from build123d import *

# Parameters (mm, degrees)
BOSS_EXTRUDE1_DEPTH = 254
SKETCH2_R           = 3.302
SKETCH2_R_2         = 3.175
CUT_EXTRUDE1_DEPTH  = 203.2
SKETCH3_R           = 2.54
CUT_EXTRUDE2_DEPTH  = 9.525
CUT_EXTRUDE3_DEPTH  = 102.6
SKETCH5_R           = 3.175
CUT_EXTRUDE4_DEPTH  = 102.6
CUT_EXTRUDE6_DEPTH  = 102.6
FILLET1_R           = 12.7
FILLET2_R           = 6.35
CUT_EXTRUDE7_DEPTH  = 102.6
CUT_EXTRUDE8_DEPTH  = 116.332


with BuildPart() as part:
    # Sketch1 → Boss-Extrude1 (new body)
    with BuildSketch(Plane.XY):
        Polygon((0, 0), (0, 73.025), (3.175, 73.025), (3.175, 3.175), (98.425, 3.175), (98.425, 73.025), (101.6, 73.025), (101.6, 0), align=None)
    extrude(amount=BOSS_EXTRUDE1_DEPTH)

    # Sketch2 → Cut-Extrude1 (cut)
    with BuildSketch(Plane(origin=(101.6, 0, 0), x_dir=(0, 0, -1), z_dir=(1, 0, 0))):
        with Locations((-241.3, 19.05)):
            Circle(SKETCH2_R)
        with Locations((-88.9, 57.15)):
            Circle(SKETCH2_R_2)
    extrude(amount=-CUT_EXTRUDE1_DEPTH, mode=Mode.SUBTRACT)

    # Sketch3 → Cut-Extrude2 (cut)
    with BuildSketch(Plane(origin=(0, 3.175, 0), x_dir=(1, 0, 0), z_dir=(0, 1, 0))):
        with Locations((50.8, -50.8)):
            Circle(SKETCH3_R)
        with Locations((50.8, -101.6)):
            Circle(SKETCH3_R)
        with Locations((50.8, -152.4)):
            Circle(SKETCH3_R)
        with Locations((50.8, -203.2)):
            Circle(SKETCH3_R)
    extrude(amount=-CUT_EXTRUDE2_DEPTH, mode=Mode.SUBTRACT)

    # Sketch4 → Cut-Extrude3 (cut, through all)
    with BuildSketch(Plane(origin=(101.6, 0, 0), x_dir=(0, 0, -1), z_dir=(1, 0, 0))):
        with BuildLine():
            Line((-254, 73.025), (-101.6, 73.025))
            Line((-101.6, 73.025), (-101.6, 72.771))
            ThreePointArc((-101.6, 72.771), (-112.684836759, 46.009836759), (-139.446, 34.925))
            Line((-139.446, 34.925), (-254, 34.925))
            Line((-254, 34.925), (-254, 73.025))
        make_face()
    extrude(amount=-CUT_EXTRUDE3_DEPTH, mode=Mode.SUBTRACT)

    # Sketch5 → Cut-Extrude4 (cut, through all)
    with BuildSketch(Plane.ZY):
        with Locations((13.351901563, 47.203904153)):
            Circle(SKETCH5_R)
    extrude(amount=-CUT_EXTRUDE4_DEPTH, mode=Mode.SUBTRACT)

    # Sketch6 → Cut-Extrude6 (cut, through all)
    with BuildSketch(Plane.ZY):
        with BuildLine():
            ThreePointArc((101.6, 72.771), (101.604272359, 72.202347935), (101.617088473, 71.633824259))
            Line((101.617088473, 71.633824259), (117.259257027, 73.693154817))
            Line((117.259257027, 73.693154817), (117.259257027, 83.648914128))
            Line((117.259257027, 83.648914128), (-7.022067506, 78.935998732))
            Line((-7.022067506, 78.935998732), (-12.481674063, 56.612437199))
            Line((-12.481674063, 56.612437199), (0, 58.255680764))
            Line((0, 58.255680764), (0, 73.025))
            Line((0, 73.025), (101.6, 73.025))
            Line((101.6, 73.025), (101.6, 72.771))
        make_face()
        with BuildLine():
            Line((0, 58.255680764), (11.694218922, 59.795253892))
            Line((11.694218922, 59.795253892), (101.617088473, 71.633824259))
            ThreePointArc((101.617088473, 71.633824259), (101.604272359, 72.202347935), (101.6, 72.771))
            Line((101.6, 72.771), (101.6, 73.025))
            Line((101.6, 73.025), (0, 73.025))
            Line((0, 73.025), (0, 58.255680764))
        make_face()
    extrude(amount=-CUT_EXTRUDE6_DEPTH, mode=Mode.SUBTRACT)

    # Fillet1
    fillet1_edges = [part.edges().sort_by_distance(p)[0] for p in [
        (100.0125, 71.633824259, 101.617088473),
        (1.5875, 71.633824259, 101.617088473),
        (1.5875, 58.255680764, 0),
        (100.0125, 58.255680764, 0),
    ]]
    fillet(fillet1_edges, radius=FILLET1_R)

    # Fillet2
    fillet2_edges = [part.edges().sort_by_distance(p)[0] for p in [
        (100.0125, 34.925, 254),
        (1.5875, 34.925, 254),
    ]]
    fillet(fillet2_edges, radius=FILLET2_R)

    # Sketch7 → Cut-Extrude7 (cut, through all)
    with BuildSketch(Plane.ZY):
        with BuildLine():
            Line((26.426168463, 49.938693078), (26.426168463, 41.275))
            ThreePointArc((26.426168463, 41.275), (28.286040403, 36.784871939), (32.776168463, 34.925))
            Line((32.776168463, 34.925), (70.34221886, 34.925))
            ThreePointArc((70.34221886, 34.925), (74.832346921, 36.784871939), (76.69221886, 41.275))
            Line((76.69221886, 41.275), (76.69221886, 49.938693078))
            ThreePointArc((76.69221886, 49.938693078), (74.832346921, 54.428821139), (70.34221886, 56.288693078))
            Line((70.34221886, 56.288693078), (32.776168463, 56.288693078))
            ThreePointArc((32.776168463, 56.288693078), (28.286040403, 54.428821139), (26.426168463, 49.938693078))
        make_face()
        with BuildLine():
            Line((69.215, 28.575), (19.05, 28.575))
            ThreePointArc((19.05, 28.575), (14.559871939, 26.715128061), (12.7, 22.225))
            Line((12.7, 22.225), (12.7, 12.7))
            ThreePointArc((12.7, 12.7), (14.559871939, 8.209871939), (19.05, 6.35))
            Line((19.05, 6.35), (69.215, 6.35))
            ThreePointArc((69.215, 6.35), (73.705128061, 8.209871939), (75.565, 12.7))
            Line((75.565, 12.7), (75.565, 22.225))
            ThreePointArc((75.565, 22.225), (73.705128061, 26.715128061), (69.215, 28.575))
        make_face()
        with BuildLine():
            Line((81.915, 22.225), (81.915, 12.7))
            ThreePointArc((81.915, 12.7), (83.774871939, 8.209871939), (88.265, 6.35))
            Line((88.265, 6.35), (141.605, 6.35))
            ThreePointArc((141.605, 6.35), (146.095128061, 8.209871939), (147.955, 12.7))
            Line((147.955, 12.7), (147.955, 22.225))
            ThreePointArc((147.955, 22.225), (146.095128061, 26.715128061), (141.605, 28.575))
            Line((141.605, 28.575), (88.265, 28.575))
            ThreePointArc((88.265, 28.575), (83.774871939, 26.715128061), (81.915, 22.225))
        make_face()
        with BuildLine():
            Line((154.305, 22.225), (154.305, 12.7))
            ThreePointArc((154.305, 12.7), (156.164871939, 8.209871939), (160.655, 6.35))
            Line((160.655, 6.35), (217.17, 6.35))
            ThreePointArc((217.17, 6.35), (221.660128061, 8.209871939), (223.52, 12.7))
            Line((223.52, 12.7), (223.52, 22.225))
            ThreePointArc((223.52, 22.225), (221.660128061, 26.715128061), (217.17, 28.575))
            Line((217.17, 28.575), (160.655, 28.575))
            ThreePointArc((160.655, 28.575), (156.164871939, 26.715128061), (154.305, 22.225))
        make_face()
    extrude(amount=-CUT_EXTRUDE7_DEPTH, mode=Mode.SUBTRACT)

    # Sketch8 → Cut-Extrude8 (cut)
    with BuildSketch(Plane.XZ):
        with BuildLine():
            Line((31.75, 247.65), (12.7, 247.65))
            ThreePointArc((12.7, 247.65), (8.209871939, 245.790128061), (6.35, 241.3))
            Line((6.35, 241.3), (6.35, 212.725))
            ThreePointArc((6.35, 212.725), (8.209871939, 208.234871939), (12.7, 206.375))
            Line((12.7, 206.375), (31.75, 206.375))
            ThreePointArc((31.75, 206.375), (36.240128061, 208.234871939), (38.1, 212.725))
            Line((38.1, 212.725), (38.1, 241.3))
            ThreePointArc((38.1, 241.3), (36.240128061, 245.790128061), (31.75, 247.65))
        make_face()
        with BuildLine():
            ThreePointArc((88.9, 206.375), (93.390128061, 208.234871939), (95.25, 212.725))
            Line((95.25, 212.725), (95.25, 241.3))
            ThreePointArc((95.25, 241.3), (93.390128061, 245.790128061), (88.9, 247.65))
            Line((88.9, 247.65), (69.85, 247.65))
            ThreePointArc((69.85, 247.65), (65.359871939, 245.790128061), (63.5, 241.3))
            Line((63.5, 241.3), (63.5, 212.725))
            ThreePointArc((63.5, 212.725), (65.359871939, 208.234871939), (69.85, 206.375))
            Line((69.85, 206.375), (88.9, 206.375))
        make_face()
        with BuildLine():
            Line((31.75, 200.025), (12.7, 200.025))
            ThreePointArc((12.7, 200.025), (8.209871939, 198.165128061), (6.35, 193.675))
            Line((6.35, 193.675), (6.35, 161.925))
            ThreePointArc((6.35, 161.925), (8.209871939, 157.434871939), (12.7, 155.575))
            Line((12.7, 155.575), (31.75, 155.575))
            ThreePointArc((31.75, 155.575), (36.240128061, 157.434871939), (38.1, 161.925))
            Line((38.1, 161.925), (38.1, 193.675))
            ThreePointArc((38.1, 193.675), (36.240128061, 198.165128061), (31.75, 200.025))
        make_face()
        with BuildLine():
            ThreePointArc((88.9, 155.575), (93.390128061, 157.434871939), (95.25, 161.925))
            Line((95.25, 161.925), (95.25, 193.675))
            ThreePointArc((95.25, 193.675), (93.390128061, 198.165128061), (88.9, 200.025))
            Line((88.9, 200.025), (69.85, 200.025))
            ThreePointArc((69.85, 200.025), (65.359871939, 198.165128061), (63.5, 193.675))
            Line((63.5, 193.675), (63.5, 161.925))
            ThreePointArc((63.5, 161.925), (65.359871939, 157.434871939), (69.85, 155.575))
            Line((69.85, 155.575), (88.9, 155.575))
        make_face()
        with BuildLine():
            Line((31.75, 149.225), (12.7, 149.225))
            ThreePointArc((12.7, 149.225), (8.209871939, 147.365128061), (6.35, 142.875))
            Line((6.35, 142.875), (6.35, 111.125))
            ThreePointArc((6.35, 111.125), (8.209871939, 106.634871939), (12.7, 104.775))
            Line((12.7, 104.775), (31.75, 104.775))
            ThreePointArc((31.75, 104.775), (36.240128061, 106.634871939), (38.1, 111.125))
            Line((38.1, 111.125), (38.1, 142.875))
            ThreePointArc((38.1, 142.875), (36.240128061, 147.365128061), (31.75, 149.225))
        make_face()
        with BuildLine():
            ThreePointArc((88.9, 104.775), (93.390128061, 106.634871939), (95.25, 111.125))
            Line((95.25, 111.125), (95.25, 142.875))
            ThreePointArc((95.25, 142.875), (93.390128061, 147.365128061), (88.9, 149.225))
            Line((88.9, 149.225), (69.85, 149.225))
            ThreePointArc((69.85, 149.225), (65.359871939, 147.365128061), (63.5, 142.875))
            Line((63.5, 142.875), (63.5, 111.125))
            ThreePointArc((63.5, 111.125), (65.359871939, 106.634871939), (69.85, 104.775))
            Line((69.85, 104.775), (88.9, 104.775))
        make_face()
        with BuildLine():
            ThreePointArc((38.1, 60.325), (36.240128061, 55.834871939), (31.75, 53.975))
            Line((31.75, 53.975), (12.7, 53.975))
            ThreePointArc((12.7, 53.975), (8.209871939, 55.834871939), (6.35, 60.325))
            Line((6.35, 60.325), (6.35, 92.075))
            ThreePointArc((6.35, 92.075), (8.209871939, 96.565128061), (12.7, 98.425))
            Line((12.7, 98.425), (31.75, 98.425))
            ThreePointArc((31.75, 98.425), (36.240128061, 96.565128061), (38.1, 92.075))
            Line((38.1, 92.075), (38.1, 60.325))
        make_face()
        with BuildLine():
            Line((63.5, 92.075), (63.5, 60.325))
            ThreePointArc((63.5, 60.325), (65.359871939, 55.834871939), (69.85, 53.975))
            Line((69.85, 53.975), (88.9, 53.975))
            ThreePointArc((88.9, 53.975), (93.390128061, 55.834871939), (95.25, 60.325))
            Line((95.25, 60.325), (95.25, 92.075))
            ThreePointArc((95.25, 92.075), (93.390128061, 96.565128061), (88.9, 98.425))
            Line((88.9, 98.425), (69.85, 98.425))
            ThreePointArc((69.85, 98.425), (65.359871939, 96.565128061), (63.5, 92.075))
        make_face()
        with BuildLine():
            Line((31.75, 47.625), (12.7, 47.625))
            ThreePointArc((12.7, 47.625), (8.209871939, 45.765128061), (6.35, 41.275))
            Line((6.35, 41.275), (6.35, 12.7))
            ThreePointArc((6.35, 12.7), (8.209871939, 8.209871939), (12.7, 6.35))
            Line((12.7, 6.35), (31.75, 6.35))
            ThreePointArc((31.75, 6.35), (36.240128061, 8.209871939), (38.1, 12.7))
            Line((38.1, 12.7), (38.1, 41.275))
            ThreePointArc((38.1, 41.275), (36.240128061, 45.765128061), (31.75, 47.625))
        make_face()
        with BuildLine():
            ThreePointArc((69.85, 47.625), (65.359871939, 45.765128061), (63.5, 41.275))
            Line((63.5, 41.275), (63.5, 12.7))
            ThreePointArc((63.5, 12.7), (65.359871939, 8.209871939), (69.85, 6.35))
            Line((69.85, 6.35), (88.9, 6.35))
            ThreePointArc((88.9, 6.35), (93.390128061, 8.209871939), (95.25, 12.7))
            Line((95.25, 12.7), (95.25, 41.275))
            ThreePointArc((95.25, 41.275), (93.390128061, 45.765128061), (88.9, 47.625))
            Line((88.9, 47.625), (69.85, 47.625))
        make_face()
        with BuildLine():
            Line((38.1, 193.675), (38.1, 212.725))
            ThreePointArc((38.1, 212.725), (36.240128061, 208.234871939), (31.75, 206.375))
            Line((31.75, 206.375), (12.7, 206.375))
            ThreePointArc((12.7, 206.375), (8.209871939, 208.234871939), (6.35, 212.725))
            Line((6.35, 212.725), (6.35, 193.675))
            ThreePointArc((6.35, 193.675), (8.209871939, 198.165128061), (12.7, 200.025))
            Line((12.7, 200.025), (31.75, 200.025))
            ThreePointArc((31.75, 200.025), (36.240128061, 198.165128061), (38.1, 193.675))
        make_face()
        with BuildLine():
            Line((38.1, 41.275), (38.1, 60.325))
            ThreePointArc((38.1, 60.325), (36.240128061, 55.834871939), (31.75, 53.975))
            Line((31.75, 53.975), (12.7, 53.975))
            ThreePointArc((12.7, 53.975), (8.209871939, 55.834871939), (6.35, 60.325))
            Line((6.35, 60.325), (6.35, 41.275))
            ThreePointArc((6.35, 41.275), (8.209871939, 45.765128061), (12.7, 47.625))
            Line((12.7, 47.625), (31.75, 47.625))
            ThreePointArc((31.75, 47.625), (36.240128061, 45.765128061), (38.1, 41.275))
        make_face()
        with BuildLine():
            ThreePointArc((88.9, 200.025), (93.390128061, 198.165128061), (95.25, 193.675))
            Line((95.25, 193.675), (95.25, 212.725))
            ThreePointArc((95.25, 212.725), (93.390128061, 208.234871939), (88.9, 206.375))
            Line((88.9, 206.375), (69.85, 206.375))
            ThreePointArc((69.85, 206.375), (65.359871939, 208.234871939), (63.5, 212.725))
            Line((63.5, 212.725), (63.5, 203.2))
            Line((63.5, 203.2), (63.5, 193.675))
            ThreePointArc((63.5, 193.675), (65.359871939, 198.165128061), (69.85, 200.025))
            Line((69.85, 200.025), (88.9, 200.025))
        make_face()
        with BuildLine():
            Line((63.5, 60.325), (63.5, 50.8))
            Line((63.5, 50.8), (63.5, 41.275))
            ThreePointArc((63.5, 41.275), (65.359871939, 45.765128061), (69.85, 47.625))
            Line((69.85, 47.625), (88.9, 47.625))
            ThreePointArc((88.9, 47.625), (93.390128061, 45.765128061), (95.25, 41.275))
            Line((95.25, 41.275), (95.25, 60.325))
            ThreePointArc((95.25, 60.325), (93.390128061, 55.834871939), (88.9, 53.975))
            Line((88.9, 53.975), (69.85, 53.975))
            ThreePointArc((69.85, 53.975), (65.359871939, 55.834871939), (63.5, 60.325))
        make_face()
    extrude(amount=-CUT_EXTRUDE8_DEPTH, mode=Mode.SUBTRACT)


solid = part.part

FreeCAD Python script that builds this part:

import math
import FreeCAD as App
import Part
import Sketcher

V = App.Vector
Q = App.Units.Quantity


def edges_at(feature, points):
    """Names of the edges that pass closest to the given points."""
    edges = feature.Shape.Edges
    near = lambda p: min(range(len(edges)), key=lambda i: edges[i].distToShape(Part.Vertex(*p))[0])
    return sorted({f"Edge{near(p) + 1}" for p in points})


def add_polygon(sketch, points):
    """Adds a closed chain of lines whose ends are joined by coincident constraints."""
    first, n = sketch.GeometryCount, len(points)
    for a, b in zip(points, points[1:] + points[:1]):
        sketch.addGeometry(Part.LineSegment(App.Vector(*a, 0), App.Vector(*b, 0)), False)
    for i in range(n):
        sketch.addConstraint(Sketcher.Constraint("Coincident", first + i, 2, first + (i + 1) % n, 1))

doc = App.newDocument("Part")
body = doc.addObject("PartDesign::Body", "Body")

sketch1 = body.newObject("Sketcher::SketchObject", "Sketch")
sketch1.AttachmentSupport = (doc.getObject("XY_Plane"), [""])
sketch1.MapMode = "FlatFace"
add_polygon(sketch1, [(0, 73), (0, 0), (101.6, 0), (101.6, 73), (98.4, 73), (98.4, 3.2), (3.2, 3.2), (3.2, 73)])
sketch1.addConstraint([
    Sketcher.Constraint("Vertical", 0),
    Sketcher.Constraint("Horizontal", 1),
    Sketcher.Constraint("Vertical", 2),
    Sketcher.Constraint("Horizontal", 3),
    Sketcher.Constraint("Vertical", 4),
    Sketcher.Constraint("Horizontal", 5),
    Sketcher.Constraint("Vertical", 6),
    Sketcher.Constraint("Horizontal", 7),
    Sketcher.Constraint("Coincident", 0, 2, -1, 1),
    Sketcher.Constraint("Horizontal", 3, 2, 6, 2),
    Sketcher.Constraint("Equal", 3, 7),
    Sketcher.Constraint("DistanceX", 1, 1, 1, 2, Q("4 in")),
    Sketcher.Constraint("DistanceX", 5, 2, 5, 1, Q("3.75 in")),
    Sketcher.Constraint("DistanceY", 4, 2, 4, 1, Q("2.75 in")),
    Sketcher.Constraint("DistanceY", 0, 2, 0, 1, Q("2.875 in")),
])
pad1 = body.newObject("PartDesign::Pad", "Pad")
pad1.Profile = sketch1
pad1.Length = Q("10 in")

sketch2 = body.newObject("Sketcher::SketchObject", "Sketch001")
sketch2.AttachmentSupport = (doc.getObject("YZ_Plane"), [""])
sketch2.MapMode = "FlatFace"
sketch2.AttachmentOffset = App.Placement(V(0, 0, 4 * 25.4), App.Rotation())
sketch2.addGeometry([
    Part.Circle(V(19.1, 241.3, 0), V(0, 0, 1), 3.3),
    Part.Circle(V(57.1, 88.9, 0), V(0, 0, 1), 3.2),
], False)
sketch2.addConstraint([
    Sketcher.Constraint("Diameter", 0, Q("0.26 in")),
    Sketcher.Constraint("Diameter", 1, Q("0.25 in")),
    Sketcher.Constraint("DistanceY", 1, 3, 0, 3, Q("6 in")),
    Sketcher.Constraint("DistanceY", -1, 1, 0, 3, Q("9.5 in")),
    Sketcher.Constraint("DistanceX", 0, 3, 1, 3, Q("1.5 in")),
    Sketcher.Constraint("DistanceX", -1, 1, 0, 3, Q("0.75 in")),
])
pocket1 = body.newObject("PartDesign::Pocket", "Pocket")
pocket1.Profile = sketch2
pocket1.Length = Q("8 in")

sketch3 = body.newObject("Sketcher::SketchObject", "Sketch002")
sketch3.AttachmentSupport = (doc.getObject("XZ_Plane"), [""])
sketch3.MapMode = "FlatFace"
sketch3.AttachmentOffset = App.Placement(V(0, 0, -0.125 * 25.4), App.Rotation())
sketch3.addGeometry([
    Part.Circle(V(50.8, 50.8, 0), V(0, 0, 1), 2.5),
    Part.Circle(V(50.8, 101.6, 0), V(0, 0, 1), 2.5),
    Part.Circle(V(50.8, 152.4, 0), V(0, 0, 1), 2.5),
    Part.Circle(V(50.8, 203.2, 0), V(0, 0, 1), 2.5),
], False)
sketch3.addConstraint([
    Sketcher.Constraint("Equal", 0, 1),
    Sketcher.Constraint("Equal", 1, 2),
    Sketcher.Constraint("Equal", 2, 3),
    Sketcher.Constraint("Vertical", 0, 3, 1, 3),
    Sketcher.Constraint("Vertical", 1, 3, 2, 3),
    Sketcher.Constraint("Vertical", 2, 3, 3, 3),
    Sketcher.Constraint("Diameter", 0, Q("0.2 in")),
    Sketcher.Constraint("DistanceX", -1, 1, 0, 3, Q("2 in")),
    Sketcher.Constraint("DistanceY", -1, 1, 0, 3, Q("2 in")),
    Sketcher.Constraint("DistanceY", -1, 1, 1, 3, Q("4 in")),
    Sketcher.Constraint("DistanceY", -1, 1, 2, 3, Q("6 in")),
    Sketcher.Constraint("DistanceY", -1, 1, 3, 3, Q("8 in")),
])
pocket2 = body.newObject("PartDesign::Pocket", "Pocket001")
pocket2.Profile = sketch3
pocket2.Length = Q("0.375 in")
pocket2.Reversed = True

sketch4 = body.newObject("Sketcher::SketchObject", "Sketch003")
sketch4.AttachmentSupport = (doc.getObject("YZ_Plane"), [""])
sketch4.MapMode = "FlatFace"
sketch4.AttachmentOffset = App.Placement(V(0, 0, 4 * 25.4), App.Rotation())
sketch4.addGeometry([
    Part.LineSegment(V(73.03, 101.6, 0), V(73.03, 254, 0)),
    Part.LineSegment(V(73.03, 254, 0), V(34.92, 254, 0)),
    Part.LineSegment(V(34.92, 254, 0), V(34.92, 139.45, 0)),
    Part.ArcOfCircle(Part.Circle(V(72.77, 139.45, 0), V(0, 0, 1), 37.85), math.radians(180), math.radians(270)),
    Part.LineSegment(V(72.77, 101.6, 0), V(73.03, 101.6, 0)),
], False)
sketch4.addConstraint([
    Sketcher.Constraint("Coincident", 0, 2, 1, 1),
    Sketcher.Constraint("Coincident", 1, 2, 2, 1),
    Sketcher.Constraint("Tangent", 2, 2, 3, 1),
    Sketcher.Constraint("Tangent", 3, 2, 4, 1),
    Sketcher.Constraint("Coincident", 4, 2, 0, 1),
    Sketcher.Constraint("Vertical", 0),
    Sketcher.Constraint("Horizontal", 1),
    Sketcher.Constraint("Vertical", 2),
    Sketcher.Constraint("Horizontal", 4),
    Sketcher.Constraint("DistanceY", 0, 1, 0, 2, Q("6 in")),
    Sketcher.Constraint("Radius", 3, Q("1.49 in")),
    Sketcher.Constraint("DistanceX", 1, 2, 1, 1, Q("1.5 in")),
    Sketcher.Constraint("DistanceY", -1, 1, 0, 2, Q("10 in")),
    Sketcher.Constraint("DistanceX", -1, 1, 3, 3, Q("2.865 in")),
])
pocket3 = body.newObject("PartDesign::Pocket", "Pocket002")
pocket3.Profile = sketch4
pocket3.Type = "ThroughAll"

sketch5 = body.newObject("Sketcher::SketchObject", "Sketch004")
sketch5.AttachmentSupport = (doc.getObject("YZ_Plane"), [""])
sketch5.MapMode = "FlatFace"
sketch5.addGeometry(Part.Circle(V(47.2, 13.4, 0), V(0, 0, 1), 3.2), False)
sketch5.addConstraint([
    Sketcher.Constraint("Diameter", 0, Q("0.25 in")),
    Sketcher.Constraint("DistanceY", -1, 1, 0, 3, Q("13.351902 mm")),
    Sketcher.Constraint("DistanceX", -1, 1, 0, 3, Q("47.203904 mm")),
])
pocket4 = body.newObject("PartDesign::Pocket", "Pocket003")
pocket4.Profile = sketch5
pocket4.Type = "ThroughAll"
pocket4.Reversed = True

sketch6 = body.newObject("Sketcher::SketchObject", "Sketch005")
sketch6.AttachmentSupport = (doc.getObject("YZ_Plane"), [""])
sketch6.MapMode = "FlatFace"
add_polygon(sketch6, [(72, 102), (74, 117), (84, 117), (79, -7), (57, -12), (58, 0), (60, 12)])
sketch6.addConstraint([
    Sketcher.Constraint("Horizontal", 1),
    Sketcher.Constraint("PointOnObject", 4, 2, -1),
    Sketcher.Constraint("Parallel", 0, 4),
    Sketcher.Constraint("Parallel", 4, 5),
    Sketcher.Constraint("Parallel", 5, 6),
    Sketcher.Constraint("Angle", 0, Q("82.5 deg")),
    Sketcher.Constraint("DistanceX", 1, 1, 1, 2, Q("9.955759 mm")),
    Sketcher.Constraint("DistanceX", -1, 1, 2, 2, Q("78.935999 mm")),
    Sketcher.Constraint("DistanceX", 5, 2, 0, 2, Q("13.897901 mm")),
    Sketcher.Constraint("Distance", 6, Q("90.69881 mm")),
    Sketcher.Constraint("DistanceX", -1, 1, 4, 2, Q("58.255681 mm")),
    Sketcher.Constraint("DistanceY", -1, 1, 5, 2, Q("11.694219 mm")),
    Sketcher.Constraint("DistanceX", 3, 2, 2, 2, Q("22.323562 mm")),
    Sketcher.Constraint("Distance", 2, Q("124.370652 mm")),
])
pocket5 = body.newObject("PartDesign::Pocket", "Pocket004")
pocket5.Profile = sketch6
pocket5.Type = "ThroughAll"
pocket5.Reversed = True
doc.recompute()

fillet = body.newObject("PartDesign::Fillet", "Fillet")
fillet.Base = (pocket5, edges_at(pocket5, [
    (100.013, 71.634, 101.617),
    (1.587, 71.634, 101.617),
    (1.587, 58.256, 0),
    (100.013, 58.256, 0),
]))
fillet.Radius = Q("0.5 in")
doc.recompute()

fillet2 = body.newObject("PartDesign::Fillet", "Fillet001")
fillet2.Base = (fillet, edges_at(fillet, [(100.013, 34.925, 254), (1.587, 34.925, 254)]))
fillet2.Radius = Q("0.25 in")

sketch7 = body.newObject("Sketcher::SketchObject", "Sketch006")
sketch7.AttachmentSupport = (doc.getObject("YZ_Plane"), [""])
sketch7.MapMode = "FlatFace"
sketch7.addGeometry([
    Part.LineSegment(V(50, 26, 0), V(41, 26, 0)),
    Part.ArcOfCircle(Part.Circle(V(41, 33, 0), V(0, 0, 1), 6), math.radians(180), math.radians(270)),
    Part.LineSegment(V(35, 33, 0), V(35, 70, 0)),
    Part.ArcOfCircle(Part.Circle(V(41, 70, 0), V(0, 0, 1), 6), math.radians(90), math.radians(180)),
    Part.LineSegment(V(41, 77, 0), V(50, 77, 0)),
    Part.ArcOfCircle(Part.Circle(V(50, 70, 0), V(0, 0, 1), 6), math.radians(0), math.radians(90)),
    Part.LineSegment(V(56, 70, 0), V(56, 33, 0)),
    Part.ArcOfCircle(Part.Circle(V(50, 33, 0), V(0, 0, 1), 6), math.radians(-90), math.radians(0)),
    Part.LineSegment(V(29, 69, 0), V(29, 19, 0)),
    Part.ArcOfCircle(Part.Circle(V(22, 19, 0), V(0, 0, 1), 6), math.radians(-90), math.radians(0)),
    Part.LineSegment(V(22, 13, 0), V(13, 13, 0)),
    Part.ArcOfCircle(Part.Circle(V(13, 19, 0), V(0, 0, 1), 6), math.radians(180), math.radians(270)),
    Part.LineSegment(V(6, 19, 0), V(6, 69, 0)),
    Part.ArcOfCircle(Part.Circle(V(13, 69, 0), V(0, 0, 1), 6), math.radians(90), math.radians(180)),
    Part.LineSegment(V(13, 76, 0), V(22, 76, 0)),
    Part.ArcOfCircle(Part.Circle(V(22, 69, 0), V(0, 0, 1), 6), math.radians(0), math.radians(90)),
    Part.LineSegment(V(22, 82, 0), V(13, 82, 0)),
    Part.ArcOfCircle(Part.Circle(V(13, 88, 0), V(0, 0, 1), 6), math.radians(180), math.radians(270)),
    Part.LineSegment(V(6, 88, 0), V(6, 142, 0)),
    Part.ArcOfCircle(Part.Circle(V(13, 142, 0), V(0, 0, 1), 6), math.radians(90), math.radians(180)),
    Part.LineSegment(V(13, 148, 0), V(22, 148, 0)),
    Part.ArcOfCircle(Part.Circle(V(22, 142, 0), V(0, 0, 1), 6), math.radians(0), math.radians(90)),
    Part.LineSegment(V(29, 142, 0), V(29, 88, 0)),
    Part.ArcOfCircle(Part.Circle(V(22, 88, 0), V(0, 0, 1), 6), math.radians(-90), math.radians(0)),
    Part.LineSegment(V(22, 154, 0), V(13, 154, 0)),
    Part.ArcOfCircle(Part.Circle(V(13, 161, 0), V(0, 0, 1), 6), math.radians(180), math.radians(270)),
    Part.LineSegment(V(6, 161, 0), V(6, 217, 0)),
    Part.ArcOfCircle(Part.Circle(V(13, 217, 0), V(0, 0, 1), 6), math.radians(90), math.radians(180)),
    Part.LineSegment(V(13, 224, 0), V(22, 224, 0)),
    Part.ArcOfCircle(Part.Circle(V(22, 217, 0), V(0, 0, 1), 6), math.radians(0), math.radians(90)),
    Part.LineSegment(V(29, 217, 0), V(29, 161, 0)),
    Part.ArcOfCircle(Part.Circle(V(22, 161, 0), V(0, 0, 1), 6), math.radians(-90), math.radians(0)),
], False)
sketch7.addConstraint([
    Sketcher.Constraint("Tangent", 0, 2, 1, 2),
    Sketcher.Constraint("Tangent", 1, 1, 2, 1),
    Sketcher.Constraint("Tangent", 2, 2, 3, 2),
    Sketcher.Constraint("Tangent", 3, 1, 4, 1),
    Sketcher.Constraint("Tangent", 4, 2, 5, 2),
    Sketcher.Constraint("Tangent", 5, 1, 6, 1),
    Sketcher.Constraint("Tangent", 6, 2, 7, 2),
    Sketcher.Constraint("Tangent", 7, 1, 0, 1),
    Sketcher.Constraint("Tangent", 8, 2, 9, 2),
    Sketcher.Constraint("Tangent", 9, 1, 10, 1),
    Sketcher.Constraint("Tangent", 10, 2, 11, 2),
    Sketcher.Constraint("Tangent", 11, 1, 12, 1),
    Sketcher.Constraint("Tangent", 12, 2, 13, 2),
    Sketcher.Constraint("Tangent", 13, 1, 14, 1),
    Sketcher.Constraint("Tangent", 14, 2, 15, 2),
    Sketcher.Constraint("Tangent", 15, 1, 8, 1),
    Sketcher.Constraint("Tangent", 16, 2, 17, 2),
    Sketcher.Constraint("Tangent", 17, 1, 18, 1),
    Sketcher.Constraint("Tangent", 18, 2, 19, 2),
    Sketcher.Constraint("Tangent", 19, 1, 20, 1),
    Sketcher.Constraint("Tangent", 20, 2, 21, 2),
    Sketcher.Constraint("Tangent", 21, 1, 22, 1),
    Sketcher.Constraint("Tangent", 22, 2, 23, 2),
    Sketcher.Constraint("Tangent", 23, 1, 16, 1),
    Sketcher.Constraint("Tangent", 24, 2, 25, 2),
    Sketcher.Constraint("Tangent", 25, 1, 26, 1),
    Sketcher.Constraint("Tangent", 26, 2, 27, 2),
    Sketcher.Constraint("Tangent", 27, 1, 28, 1),
    Sketcher.Constraint("Tangent", 28, 2, 29, 2),
    Sketcher.Constraint("Tangent", 29, 1, 30, 1),
    Sketcher.Constraint("Tangent", 30, 2, 31, 2),
    Sketcher.Constraint("Tangent", 31, 1, 24, 1),
    Sketcher.Constraint("Horizontal", 0),
    Sketcher.Constraint("Vertical", 2),
    Sketcher.Constraint("Horizontal", 4),
    Sketcher.Constraint("Vertical", 6),
    Sketcher.Constraint("Vertical", 8),
    Sketcher.Constraint("Horizontal", 10),
    Sketcher.Constraint("Vertical", 12),
    Sketcher.Constraint("Horizontal", 14),
    Sketcher.Constraint("Horizontal", 16),
    Sketcher.Constraint("Vertical", 18),
    Sketcher.Constraint("Horizontal", 20),
    Sketcher.Constraint("Vertical", 22),
    Sketcher.Constraint("Horizontal", 24),
    Sketcher.Constraint("Vertical", 26),
    Sketcher.Constraint("Horizontal", 28),
    Sketcher.Constraint("Vertical", 30),
    Sketcher.Constraint("Equal", 1, 3),
    Sketcher.Constraint("Equal", 3, 5),
    Sketcher.Constraint("Equal", 5, 7),
    Sketcher.Constraint("Equal", 7, 9),
    Sketcher.Constraint("Equal", 9, 11),
    Sketcher.Constraint("Equal", 11, 13),
    Sketcher.Constraint("Equal", 13, 15),
    Sketcher.Constraint("Equal", 15, 17),
    Sketcher.Constraint("Equal", 17, 19),
    Sketcher.Constraint("Equal", 19, 21),
    Sketcher.Constraint("Equal", 21, 23),
    Sketcher.Constraint("Equal", 23, 25),
    Sketcher.Constraint("Equal", 25, 27),
    Sketcher.Constraint("Equal", 27, 29),
    Sketcher.Constraint("Equal", 29, 31),
    Sketcher.Constraint("Vertical", 13, 3, 17, 3),
    Sketcher.Constraint("Vertical", 15, 3, 21, 3),
    Sketcher.Constraint("Vertical", 19, 3, 25, 3),
    Sketcher.Constraint("Vertical", 23, 3, 29, 3),
    Sketcher.Constraint("Radius", 1, Q("0.25 in")),
    Sketcher.Constraint("DistanceY", 18, 1, 18, 2, Q("2.1 in")),
    Sketcher.Constraint("DistanceX", -1, 1, 11, 3, Q("0.5 in")),
    Sketcher.Constraint("DistanceY", -1, 1, 9, 1, Q("0.5 in")),
    Sketcher.Constraint("DistanceY", -1, 1, 27, 1, Q("8.8 in")),
    Sketcher.Constraint("DistanceY", 13, 3, 25, 3, Q("3.6 in")),
    Sketcher.Constraint("DistanceX", 9, 3, 1, 1, Q("0.5 in")),
    Sketcher.Constraint("DistanceY", 13, 1, 17, 3, Q("0.5 in")),
    Sketcher.Constraint("DistanceX", 10, 2, 10, 1, Q("0.375 in")),
    Sketcher.Constraint("DistanceY", 8, 2, 8, 1, Q("1.975 in")),
    Sketcher.Constraint("DistanceY", 2, 1, 2, 2, Q("37.56605 mm")),
    Sketcher.Constraint("DistanceX", 0, 2, 0, 1, Q("8.663693 mm")),
    Sketcher.Constraint("DistanceY", -1, 1, 1, 3, Q("32.776168 mm")),
])
pocket6 = body.newObject("PartDesign::Pocket", "Pocket005")
pocket6.Profile = sketch7
pocket6.Type = "ThroughAll"
pocket6.Reversed = True

sketch8 = body.newObject("Sketcher::SketchObject", "Sketch007")
sketch8.AttachmentSupport = (doc.getObject("XZ_Plane"), [""])
sketch8.MapMode = "FlatFace"
sketch8.addGeometry([
    Part.LineSegment(V(32, 248, 0), V(13, 248, 0)),
    Part.ArcOfCircle(Part.Circle(V(13, 241, 0), V(0, 0, 1), 6), math.radians(90), math.radians(180)),
    Part.LineSegment(V(6, 241, 0), V(6, 162, 0)),
    Part.ArcOfCircle(Part.Circle(V(13, 162, 0), V(0, 0, 1), 6), math.radians(180), math.radians(270)),
    Part.LineSegment(V(13, 156, 0), V(32, 156, 0)),
    Part.ArcOfCircle(Part.Circle(V(32, 162, 0), V(0, 0, 1), 6), math.radians(-90), math.radians(0)),
    Part.LineSegment(V(38, 162, 0), V(38, 241, 0)),
    Part.ArcOfCircle(Part.Circle(V(32, 241, 0), V(0, 0, 1), 6), math.radians(0), math.radians(90)),
    Part.ArcOfCircle(Part.Circle(V(89, 241, 0), V(0, 0, 1), 6), math.radians(0), math.radians(90)),
    Part.LineSegment(V(89, 248, 0), V(70, 248, 0)),
    Part.ArcOfCircle(Part.Circle(V(70, 241, 0), V(0, 0, 1), 6), math.radians(90), math.radians(180)),
    Part.LineSegment(V(64, 241, 0), V(64, 162, 0)),
    Part.ArcOfCircle(Part.Circle(V(70, 162, 0), V(0, 0, 1), 6), math.radians(180), math.radians(270)),
    Part.LineSegment(V(70, 156, 0), V(89, 156, 0)),
    Part.ArcOfCircle(Part.Circle(V(89, 162, 0), V(0, 0, 1), 6), math.radians(-90), math.radians(0)),
    Part.LineSegment(V(95, 162, 0), V(95, 241, 0)),
    Part.LineSegment(V(32, 149, 0), V(13, 149, 0)),
    Part.ArcOfCircle(Part.Circle(V(13, 143, 0), V(0, 0, 1), 6), math.radians(90), math.radians(180)),
    Part.LineSegment(V(6, 143, 0), V(6, 111, 0)),
    Part.ArcOfCircle(Part.Circle(V(13, 111, 0), V(0, 0, 1), 6), math.radians(180), math.radians(270)),
    Part.LineSegment(V(13, 105, 0), V(32, 105, 0)),
    Part.ArcOfCircle(Part.Circle(V(32, 111, 0), V(0, 0, 1), 6), math.radians(-90), math.radians(0)),
    Part.LineSegment(V(38, 111, 0), V(38, 143, 0)),
    Part.ArcOfCircle(Part.Circle(V(32, 143, 0), V(0, 0, 1), 6), math.radians(0), math.radians(90)),
    Part.ArcOfCircle(Part.Circle(V(89, 111, 0), V(0, 0, 1), 6), math.radians(-90), math.radians(0)),
    Part.LineSegment(V(95, 111, 0), V(95, 143, 0)),
    Part.ArcOfCircle(Part.Circle(V(89, 143, 0), V(0, 0, 1), 6), math.radians(0), math.radians(90)),
    Part.LineSegment(V(89, 149, 0), V(70, 149, 0)),
    Part.ArcOfCircle(Part.Circle(V(70, 143, 0), V(0, 0, 1), 6), math.radians(90), math.radians(180)),
    Part.LineSegment(V(64, 143, 0), V(64, 111, 0)),
    Part.ArcOfCircle(Part.Circle(V(70, 111, 0), V(0, 0, 1), 6), math.radians(180), math.radians(270)),
    Part.LineSegment(V(70, 105, 0), V(89, 105, 0)),
    Part.LineSegment(V(6, 92, 0), V(6, 13, 0)),
    Part.ArcOfCircle(Part.Circle(V(13, 13, 0), V(0, 0, 1), 6), math.radians(180), math.radians(270)),
    Part.LineSegment(V(13, 6, 0), V(32, 6, 0)),
    Part.ArcOfCircle(Part.Circle(V(32, 13, 0), V(0, 0, 1), 6), math.radians(-90), math.radians(0)),
    Part.LineSegment(V(38, 13, 0), V(38, 92, 0)),
    Part.ArcOfCircle(Part.Circle(V(32, 92, 0), V(0, 0, 1), 6), math.radians(0), math.radians(90)),
    Part.LineSegment(V(32, 98, 0), V(13, 98, 0)),
    Part.ArcOfCircle(Part.Circle(V(13, 92, 0), V(0, 0, 1), 6), math.radians(90), math.radians(180)),
    Part.LineSegment(V(64, 92, 0), V(64, 13, 0)),
    Part.ArcOfCircle(Part.Circle(V(70, 13, 0), V(0, 0, 1), 6), math.radians(180), math.radians(270)),
    Part.LineSegment(V(70, 6, 0), V(89, 6, 0)),
    Part.ArcOfCircle(Part.Circle(V(89, 13, 0), V(0, 0, 1), 6), math.radians(-90), math.radians(0)),
    Part.LineSegment(V(95, 13, 0), V(95, 92, 0)),
    Part.ArcOfCircle(Part.Circle(V(89, 92, 0), V(0, 0, 1), 6), math.radians(0), math.radians(90)),
    Part.LineSegment(V(89, 98, 0), V(70, 98, 0)),
    Part.ArcOfCircle(Part.Circle(V(70, 92, 0), V(0, 0, 1), 6), math.radians(90), math.radians(180)),
], False)
sketch8.addConstraint([
    Sketcher.Constraint("Tangent", 0, 2, 1, 1),
    Sketcher.Constraint("Tangent", 1, 2, 2, 1),
    Sketcher.Constraint("Tangent", 2, 2, 3, 1),
    Sketcher.Constraint("Tangent", 3, 2, 4, 1),
    Sketcher.Constraint("Tangent", 4, 2, 5, 1),
    Sketcher.Constraint("Tangent", 5, 2, 6, 1),
    Sketcher.Constraint("Tangent", 6, 2, 7, 1),
    Sketcher.Constraint("Tangent", 7, 2, 0, 1),
    Sketcher.Constraint("Tangent", 8, 2, 9, 1),
    Sketcher.Constraint("Tangent", 9, 2, 10, 1),
    Sketcher.Constraint("Tangent", 10, 2, 11, 1),
    Sketcher.Constraint("Tangent", 11, 2, 12, 1),
    Sketcher.Constraint("Tangent", 12, 2, 13, 1),
    Sketcher.Constraint("Tangent", 13, 2, 14, 1),
    Sketcher.Constraint("Tangent", 14, 2, 15, 1),
    Sketcher.Constraint("Tangent", 15, 2, 8, 1),
    Sketcher.Constraint("Tangent", 16, 2, 17, 1),
    Sketcher.Constraint("Tangent", 17, 2, 18, 1),
    Sketcher.Constraint("Tangent", 18, 2, 19, 1),
    Sketcher.Constraint("Tangent", 19, 2, 20, 1),
    Sketcher.Constraint("Tangent", 20, 2, 21, 1),
    Sketcher.Constraint("Tangent", 21, 2, 22, 1),
    Sketcher.Constraint("Tangent", 22, 2, 23, 1),
    Sketcher.Constraint("Tangent", 23, 2, 16, 1),
    Sketcher.Constraint("Tangent", 24, 2, 25, 1),
    Sketcher.Constraint("Tangent", 25, 2, 26, 1),
    Sketcher.Constraint("Tangent", 26, 2, 27, 1),
    Sketcher.Constraint("Tangent", 27, 2, 28, 1),
    Sketcher.Constraint("Tangent", 28, 2, 29, 1),
    Sketcher.Constraint("Tangent", 29, 2, 30, 1),
    Sketcher.Constraint("Tangent", 30, 2, 31, 1),
    Sketcher.Constraint("Tangent", 31, 2, 24, 1),
    Sketcher.Constraint("Tangent", 32, 2, 33, 1),
    Sketcher.Constraint("Tangent", 33, 2, 34, 1),
    Sketcher.Constraint("Tangent", 34, 2, 35, 1),
    Sketcher.Constraint("Tangent", 35, 2, 36, 1),
    Sketcher.Constraint("Tangent", 36, 2, 37, 1),
    Sketcher.Constraint("Tangent", 37, 2, 38, 1),
    Sketcher.Constraint("Tangent", 38, 2, 39, 1),
    Sketcher.Constraint("Tangent", 39, 2, 32, 1),
    Sketcher.Constraint("Tangent", 40, 2, 41, 1),
    Sketcher.Constraint("Tangent", 41, 2, 42, 1),
    Sketcher.Constraint("Tangent", 42, 2, 43, 1),
    Sketcher.Constraint("Tangent", 43, 2, 44, 1),
    Sketcher.Constraint("Tangent", 44, 2, 45, 1),
    Sketcher.Constraint("Tangent", 45, 2, 46, 1),
    Sketcher.Constraint("Tangent", 46, 2, 47, 1),
    Sketcher.Constraint("Tangent", 47, 2, 40, 1),
    Sketcher.Constraint("Horizontal", 0),
    Sketcher.Constraint("Vertical", 2),
    Sketcher.Constraint("Horizontal", 4),
    Sketcher.Constraint("Vertical", 6),
    Sketcher.Constraint("Horizontal", 9),
    Sketcher.Constraint("Vertical", 11),
    Sketcher.Constraint("Horizontal", 13),
    Sketcher.Constraint("Vertical", 15),
    Sketcher.Constraint("Horizontal", 16),
    Sketcher.Constraint("Vertical", 18),
    Sketcher.Constraint("Horizontal", 20),
    Sketcher.Constraint("Vertical", 22),
    Sketcher.Constraint("Vertical", 25),
    Sketcher.Constraint("Horizontal", 27),
    Sketcher.Constraint("Vertical", 29),
    Sketcher.Constraint("Horizontal", 31),
    Sketcher.Constraint("Vertical", 32),
    Sketcher.Constraint("Horizontal", 34),
    Sketcher.Constraint("Vertical", 36),
    Sketcher.Constraint("Horizontal", 38),
    Sketcher.Constraint("Vertical", 40),
    Sketcher.Constraint("Horizontal", 42),
    Sketcher.Constraint("Vertical", 44),
    Sketcher.Constraint("Horizontal", 46),
    Sketcher.Constraint("Equal", 1, 3),
    Sketcher.Constraint("Equal", 3, 5),
    Sketcher.Constraint("Equal", 5, 7),
    Sketcher.Constraint("Equal", 7, 8),
    Sketcher.Constraint("Equal", 8, 10),
    Sketcher.Constraint("Equal", 10, 12),
    Sketcher.Constraint("Equal", 12, 14),
    Sketcher.Constraint("Equal", 14, 17),
    Sketcher.Constraint("Equal", 17, 19),
    Sketcher.Constraint("Equal", 19, 21),
    Sketcher.Constraint("Equal", 21, 23),
    Sketcher.Constraint("Equal", 23, 24),
    Sketcher.Constraint("Equal", 24, 26),
    Sketcher.Constraint("Equal", 26, 28),
    Sketcher.Constraint("Equal", 28, 30),
    Sketcher.Constraint("Equal", 30, 33),
    Sketcher.Constraint("Equal", 33, 35),
    Sketcher.Constraint("Equal", 35, 37),
    Sketcher.Constraint("Equal", 37, 39),
    Sketcher.Constraint("Equal", 39, 41),
    Sketcher.Constraint("Equal", 41, 43),
    Sketcher.Constraint("Equal", 43, 45),
    Sketcher.Constraint("Equal", 45, 47),
    Sketcher.Constraint("Horizontal", 7, 3, 8, 3),
    Sketcher.Constraint("Horizontal", 5, 3, 12, 3),
    Sketcher.Constraint("Horizontal", 21, 3, 24, 3),
    Sketcher.Constraint("Horizontal", 23, 3, 26, 3),
    Sketcher.Constraint("Horizontal", 35, 3, 41, 3),
    Sketcher.Constraint("Horizontal", 39, 3, 45, 3),
    Sketcher.Constraint("Vertical", 3, 3, 17, 3),
    Sketcher.Constraint("Vertical", 7, 3, 21, 3),
    Sketcher.Constraint("Vertical", 14, 3, 24, 3),
    Sketcher.Constraint("Vertical", 12, 3, 28, 3),
    Sketcher.Constraint("Vertical", 19, 3, 33, 3),
    Sketcher.Constraint("Vertical", 23, 3, 35, 3),
    Sketcher.Constraint("Vertical", 30, 3, 41, 3),
    Sketcher.Constraint("Vertical", 26, 3, 43, 3),
    Sketcher.Constraint("Equal", 4, 9),
    Sketcher.Constraint("Equal", 15, 32),
    Sketcher.Constraint("Radius", 1, Q("0.25 in")),
    Sketcher.Constraint("DistanceX", 0, 2, 0, 1, Q("0.75 in")),
    Sketcher.Constraint("DistanceY", 18, 2, 18, 1, Q("1.25 in")),
    Sketcher.Constraint("DistanceX", -1, 1, 1, 3, Q("0.5 in")),
    Sketcher.Constraint("DistanceY", -1, 1, 1, 3, Q("9.5 in")),
    Sketcher.Constraint("DistanceX", -1, 1, 8, 3, Q("3.5 in")),
    Sketcher.Constraint("DistanceY", -1, 1, 33, 3, Q("0.5 in")),
    Sketcher.Constraint("DistanceY", 2, 2, 2, 1, Q("3.125 in")),
    Sketcher.Constraint("DistanceY", -1, 1, 17, 3, Q("5.625 in")),
])
pocket7 = body.newObject("PartDesign::Pocket", "Pocket006")
pocket7.Profile = sketch8
pocket7.Length = Q("4.58 in")

doc.recompute()
